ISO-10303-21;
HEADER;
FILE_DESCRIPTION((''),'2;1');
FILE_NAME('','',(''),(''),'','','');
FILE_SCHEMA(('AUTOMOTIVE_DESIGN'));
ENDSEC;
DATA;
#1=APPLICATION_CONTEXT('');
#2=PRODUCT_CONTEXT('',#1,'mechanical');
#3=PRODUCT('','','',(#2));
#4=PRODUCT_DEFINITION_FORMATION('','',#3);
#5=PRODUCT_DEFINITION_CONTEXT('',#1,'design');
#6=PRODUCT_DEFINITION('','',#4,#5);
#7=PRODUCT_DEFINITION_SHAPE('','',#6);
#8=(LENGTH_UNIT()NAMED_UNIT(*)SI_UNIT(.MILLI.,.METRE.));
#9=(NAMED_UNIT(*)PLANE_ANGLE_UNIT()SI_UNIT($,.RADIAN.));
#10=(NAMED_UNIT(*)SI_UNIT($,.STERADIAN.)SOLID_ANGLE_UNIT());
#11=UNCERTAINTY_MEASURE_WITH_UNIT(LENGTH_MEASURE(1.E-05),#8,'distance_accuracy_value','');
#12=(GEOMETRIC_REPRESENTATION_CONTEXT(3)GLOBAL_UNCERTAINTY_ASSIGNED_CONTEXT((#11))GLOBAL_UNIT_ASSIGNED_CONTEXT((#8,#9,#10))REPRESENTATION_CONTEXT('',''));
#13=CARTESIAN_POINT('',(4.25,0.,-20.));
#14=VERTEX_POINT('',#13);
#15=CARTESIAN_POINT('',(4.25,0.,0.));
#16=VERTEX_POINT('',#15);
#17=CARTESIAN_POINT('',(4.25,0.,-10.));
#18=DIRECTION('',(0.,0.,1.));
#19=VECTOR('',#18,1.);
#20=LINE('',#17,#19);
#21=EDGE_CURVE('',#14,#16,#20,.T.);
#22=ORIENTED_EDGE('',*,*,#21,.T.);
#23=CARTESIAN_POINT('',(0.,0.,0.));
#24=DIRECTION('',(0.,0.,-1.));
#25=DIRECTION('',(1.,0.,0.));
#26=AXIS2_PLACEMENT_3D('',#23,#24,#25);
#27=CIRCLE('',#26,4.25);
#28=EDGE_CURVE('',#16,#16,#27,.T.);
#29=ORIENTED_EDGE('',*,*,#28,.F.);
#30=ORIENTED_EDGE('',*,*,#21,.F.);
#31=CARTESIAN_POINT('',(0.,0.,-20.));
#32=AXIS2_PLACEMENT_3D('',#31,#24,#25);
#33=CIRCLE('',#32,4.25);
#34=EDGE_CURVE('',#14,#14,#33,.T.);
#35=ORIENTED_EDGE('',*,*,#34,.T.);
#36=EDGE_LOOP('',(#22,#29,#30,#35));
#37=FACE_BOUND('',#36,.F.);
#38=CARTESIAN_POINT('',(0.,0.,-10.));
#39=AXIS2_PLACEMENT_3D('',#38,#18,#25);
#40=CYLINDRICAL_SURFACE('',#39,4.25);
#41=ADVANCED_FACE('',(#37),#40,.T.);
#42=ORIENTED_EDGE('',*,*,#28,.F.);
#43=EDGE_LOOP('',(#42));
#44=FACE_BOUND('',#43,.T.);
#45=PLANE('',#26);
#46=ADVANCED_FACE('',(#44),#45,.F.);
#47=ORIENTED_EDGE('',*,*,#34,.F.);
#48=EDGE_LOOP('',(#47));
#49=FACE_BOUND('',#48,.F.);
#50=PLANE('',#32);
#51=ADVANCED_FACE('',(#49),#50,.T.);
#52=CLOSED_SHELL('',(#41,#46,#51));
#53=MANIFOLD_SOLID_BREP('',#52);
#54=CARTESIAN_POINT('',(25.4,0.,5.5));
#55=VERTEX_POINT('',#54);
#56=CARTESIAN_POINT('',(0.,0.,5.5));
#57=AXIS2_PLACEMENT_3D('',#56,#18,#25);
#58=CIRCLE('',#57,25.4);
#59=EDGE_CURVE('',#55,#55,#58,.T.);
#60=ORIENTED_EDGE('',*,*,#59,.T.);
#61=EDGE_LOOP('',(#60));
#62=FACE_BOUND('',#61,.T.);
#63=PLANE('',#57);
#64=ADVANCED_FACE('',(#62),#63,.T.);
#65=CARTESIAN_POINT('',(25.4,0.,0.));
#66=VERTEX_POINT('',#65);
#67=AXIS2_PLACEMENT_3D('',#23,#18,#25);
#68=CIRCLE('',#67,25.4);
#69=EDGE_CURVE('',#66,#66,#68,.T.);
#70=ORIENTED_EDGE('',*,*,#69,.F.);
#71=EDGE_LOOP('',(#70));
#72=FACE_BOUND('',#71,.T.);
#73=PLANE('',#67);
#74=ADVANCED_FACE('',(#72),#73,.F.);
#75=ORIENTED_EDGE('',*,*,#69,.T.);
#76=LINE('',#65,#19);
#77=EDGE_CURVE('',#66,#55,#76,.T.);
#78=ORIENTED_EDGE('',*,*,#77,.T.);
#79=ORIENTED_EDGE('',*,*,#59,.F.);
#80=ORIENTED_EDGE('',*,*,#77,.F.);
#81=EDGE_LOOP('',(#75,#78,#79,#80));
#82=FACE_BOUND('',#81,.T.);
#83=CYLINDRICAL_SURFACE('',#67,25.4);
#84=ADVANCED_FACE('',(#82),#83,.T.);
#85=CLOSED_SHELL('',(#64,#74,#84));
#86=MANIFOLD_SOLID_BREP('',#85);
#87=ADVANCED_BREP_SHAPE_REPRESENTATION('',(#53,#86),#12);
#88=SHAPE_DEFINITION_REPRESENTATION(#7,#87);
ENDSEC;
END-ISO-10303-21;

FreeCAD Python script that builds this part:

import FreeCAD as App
import Part
import Sketcher

V = App.Vector


def add_polygon(sketch, points):
    """Adds a closed chain of lines whose ends are joined by coincident constraints."""
    first, n = sketch.GeometryCount, len(points)
    for a, b in zip(points, points[1:] + points[:1]):
        sketch.addGeometry(Part.LineSegment(App.Vector(*a, 0), App.Vector(*b, 0)), False)
    for i in range(n):
        sketch.addConstraint(Sketcher.Constraint("Coincident", first + i, 2, first + (i + 1) % n, 1))

doc = App.newDocument("Part")
params = doc.addObject("Spreadsheet::Sheet", "Params")
for row, (alias, value) in enumerate([
    ("sketch1_height", "20 mm"),
    ("sketch1_width", "4.25 mm"),
    ("revolution_angle", "360 deg"),
    ("sketch2_width", "25.4 mm"),
    ("sketch2_height", "5.5 mm"),
    ("revolution2_angle", "360 deg"),
], start=1):
    params.set(f"A{row}", alias)
    params.set(f"B{row}", "=" + value)
    params.setAlias(f"B{row}", alias)

body = doc.addObject("PartDesign::Body", "Body")

sketch1 = body.newObject("Sketcher::SketchObject", "Sketch")
sketch1.AttachmentSupport = (doc.getObject("XZ_Plane"), [""])
sketch1.MapMode = "FlatFace"
add_polygon(sketch1, [(0, 0), (0, -20), (4.2, -20), (4.2, 0)])
sketch1.addConstraint([
    Sketcher.Constraint("Vertical", 0),
    Sketcher.Constraint("Horizontal", 1),
    Sketcher.Constraint("Vertical", 2),
    Sketcher.Constraint("Horizontal", 3),
    Sketcher.Constraint("Coincident", 3, 2, -1, 1),
    Sketcher.Constraint("DistanceY", 0, 2, 0, 1, 20.0),
    Sketcher.Constraint("DistanceX", 1, 1, 1, 2, 4.25),
])
sketch1.setExpression("Constraints[9]", "Params.sketch1_height")
sketch1.setExpression("Constraints[10]", "Params.sketch1_width")
revolution = body.newObject("PartDesign::Revolution", "Revolution")
revolution.Profile = sketch1
revolution.ReferenceAxis = (sketch1, ["V_Axis"])
revolution.setExpression("Angle", "Params.revolution_angle")
body2 = doc.addObject("PartDesign::Body", "Body001")

sketch2 = body2.newObject("Sketcher::SketchObject", "Sketch001")
sketch2.AttachmentSupport = (doc.getObject("XZ_Plane001"), [""])
sketch2.MapMode = "FlatFace"
add_polygon(sketch2, [(0, 6), (0, 0), (25, 0), (25, 6)])
sketch2.addConstraint([
    Sketcher.Constraint("Vertical", 0),
    Sketcher.Constraint("Horizontal", 1),
    Sketcher.Constraint("Vertical", 2),
    Sketcher.Constraint("Horizontal", 3),
    Sketcher.Constraint("Coincident", 0, 2, -1, 1),
    Sketcher.Constraint("DistanceX", 1, 1, 1, 2, 25.4),
    Sketcher.Constraint("DistanceY", 0, 2, 0, 1, 5.5),
])
sketch2.setExpression("Constraints[9]", "Params.sketch2_width")
sketch2.setExpression("Constraints[10]", "Params.sketch2_height")
revolution2 = body2.newObject("PartDesign::Revolution", "Revolution001")
revolution2.Profile = sketch2
revolution2.ReferenceAxis = (sketch2, ["V_Axis"])
revolution2.setExpression("Angle", "Params.revolution2_angle")

doc.recompute()
